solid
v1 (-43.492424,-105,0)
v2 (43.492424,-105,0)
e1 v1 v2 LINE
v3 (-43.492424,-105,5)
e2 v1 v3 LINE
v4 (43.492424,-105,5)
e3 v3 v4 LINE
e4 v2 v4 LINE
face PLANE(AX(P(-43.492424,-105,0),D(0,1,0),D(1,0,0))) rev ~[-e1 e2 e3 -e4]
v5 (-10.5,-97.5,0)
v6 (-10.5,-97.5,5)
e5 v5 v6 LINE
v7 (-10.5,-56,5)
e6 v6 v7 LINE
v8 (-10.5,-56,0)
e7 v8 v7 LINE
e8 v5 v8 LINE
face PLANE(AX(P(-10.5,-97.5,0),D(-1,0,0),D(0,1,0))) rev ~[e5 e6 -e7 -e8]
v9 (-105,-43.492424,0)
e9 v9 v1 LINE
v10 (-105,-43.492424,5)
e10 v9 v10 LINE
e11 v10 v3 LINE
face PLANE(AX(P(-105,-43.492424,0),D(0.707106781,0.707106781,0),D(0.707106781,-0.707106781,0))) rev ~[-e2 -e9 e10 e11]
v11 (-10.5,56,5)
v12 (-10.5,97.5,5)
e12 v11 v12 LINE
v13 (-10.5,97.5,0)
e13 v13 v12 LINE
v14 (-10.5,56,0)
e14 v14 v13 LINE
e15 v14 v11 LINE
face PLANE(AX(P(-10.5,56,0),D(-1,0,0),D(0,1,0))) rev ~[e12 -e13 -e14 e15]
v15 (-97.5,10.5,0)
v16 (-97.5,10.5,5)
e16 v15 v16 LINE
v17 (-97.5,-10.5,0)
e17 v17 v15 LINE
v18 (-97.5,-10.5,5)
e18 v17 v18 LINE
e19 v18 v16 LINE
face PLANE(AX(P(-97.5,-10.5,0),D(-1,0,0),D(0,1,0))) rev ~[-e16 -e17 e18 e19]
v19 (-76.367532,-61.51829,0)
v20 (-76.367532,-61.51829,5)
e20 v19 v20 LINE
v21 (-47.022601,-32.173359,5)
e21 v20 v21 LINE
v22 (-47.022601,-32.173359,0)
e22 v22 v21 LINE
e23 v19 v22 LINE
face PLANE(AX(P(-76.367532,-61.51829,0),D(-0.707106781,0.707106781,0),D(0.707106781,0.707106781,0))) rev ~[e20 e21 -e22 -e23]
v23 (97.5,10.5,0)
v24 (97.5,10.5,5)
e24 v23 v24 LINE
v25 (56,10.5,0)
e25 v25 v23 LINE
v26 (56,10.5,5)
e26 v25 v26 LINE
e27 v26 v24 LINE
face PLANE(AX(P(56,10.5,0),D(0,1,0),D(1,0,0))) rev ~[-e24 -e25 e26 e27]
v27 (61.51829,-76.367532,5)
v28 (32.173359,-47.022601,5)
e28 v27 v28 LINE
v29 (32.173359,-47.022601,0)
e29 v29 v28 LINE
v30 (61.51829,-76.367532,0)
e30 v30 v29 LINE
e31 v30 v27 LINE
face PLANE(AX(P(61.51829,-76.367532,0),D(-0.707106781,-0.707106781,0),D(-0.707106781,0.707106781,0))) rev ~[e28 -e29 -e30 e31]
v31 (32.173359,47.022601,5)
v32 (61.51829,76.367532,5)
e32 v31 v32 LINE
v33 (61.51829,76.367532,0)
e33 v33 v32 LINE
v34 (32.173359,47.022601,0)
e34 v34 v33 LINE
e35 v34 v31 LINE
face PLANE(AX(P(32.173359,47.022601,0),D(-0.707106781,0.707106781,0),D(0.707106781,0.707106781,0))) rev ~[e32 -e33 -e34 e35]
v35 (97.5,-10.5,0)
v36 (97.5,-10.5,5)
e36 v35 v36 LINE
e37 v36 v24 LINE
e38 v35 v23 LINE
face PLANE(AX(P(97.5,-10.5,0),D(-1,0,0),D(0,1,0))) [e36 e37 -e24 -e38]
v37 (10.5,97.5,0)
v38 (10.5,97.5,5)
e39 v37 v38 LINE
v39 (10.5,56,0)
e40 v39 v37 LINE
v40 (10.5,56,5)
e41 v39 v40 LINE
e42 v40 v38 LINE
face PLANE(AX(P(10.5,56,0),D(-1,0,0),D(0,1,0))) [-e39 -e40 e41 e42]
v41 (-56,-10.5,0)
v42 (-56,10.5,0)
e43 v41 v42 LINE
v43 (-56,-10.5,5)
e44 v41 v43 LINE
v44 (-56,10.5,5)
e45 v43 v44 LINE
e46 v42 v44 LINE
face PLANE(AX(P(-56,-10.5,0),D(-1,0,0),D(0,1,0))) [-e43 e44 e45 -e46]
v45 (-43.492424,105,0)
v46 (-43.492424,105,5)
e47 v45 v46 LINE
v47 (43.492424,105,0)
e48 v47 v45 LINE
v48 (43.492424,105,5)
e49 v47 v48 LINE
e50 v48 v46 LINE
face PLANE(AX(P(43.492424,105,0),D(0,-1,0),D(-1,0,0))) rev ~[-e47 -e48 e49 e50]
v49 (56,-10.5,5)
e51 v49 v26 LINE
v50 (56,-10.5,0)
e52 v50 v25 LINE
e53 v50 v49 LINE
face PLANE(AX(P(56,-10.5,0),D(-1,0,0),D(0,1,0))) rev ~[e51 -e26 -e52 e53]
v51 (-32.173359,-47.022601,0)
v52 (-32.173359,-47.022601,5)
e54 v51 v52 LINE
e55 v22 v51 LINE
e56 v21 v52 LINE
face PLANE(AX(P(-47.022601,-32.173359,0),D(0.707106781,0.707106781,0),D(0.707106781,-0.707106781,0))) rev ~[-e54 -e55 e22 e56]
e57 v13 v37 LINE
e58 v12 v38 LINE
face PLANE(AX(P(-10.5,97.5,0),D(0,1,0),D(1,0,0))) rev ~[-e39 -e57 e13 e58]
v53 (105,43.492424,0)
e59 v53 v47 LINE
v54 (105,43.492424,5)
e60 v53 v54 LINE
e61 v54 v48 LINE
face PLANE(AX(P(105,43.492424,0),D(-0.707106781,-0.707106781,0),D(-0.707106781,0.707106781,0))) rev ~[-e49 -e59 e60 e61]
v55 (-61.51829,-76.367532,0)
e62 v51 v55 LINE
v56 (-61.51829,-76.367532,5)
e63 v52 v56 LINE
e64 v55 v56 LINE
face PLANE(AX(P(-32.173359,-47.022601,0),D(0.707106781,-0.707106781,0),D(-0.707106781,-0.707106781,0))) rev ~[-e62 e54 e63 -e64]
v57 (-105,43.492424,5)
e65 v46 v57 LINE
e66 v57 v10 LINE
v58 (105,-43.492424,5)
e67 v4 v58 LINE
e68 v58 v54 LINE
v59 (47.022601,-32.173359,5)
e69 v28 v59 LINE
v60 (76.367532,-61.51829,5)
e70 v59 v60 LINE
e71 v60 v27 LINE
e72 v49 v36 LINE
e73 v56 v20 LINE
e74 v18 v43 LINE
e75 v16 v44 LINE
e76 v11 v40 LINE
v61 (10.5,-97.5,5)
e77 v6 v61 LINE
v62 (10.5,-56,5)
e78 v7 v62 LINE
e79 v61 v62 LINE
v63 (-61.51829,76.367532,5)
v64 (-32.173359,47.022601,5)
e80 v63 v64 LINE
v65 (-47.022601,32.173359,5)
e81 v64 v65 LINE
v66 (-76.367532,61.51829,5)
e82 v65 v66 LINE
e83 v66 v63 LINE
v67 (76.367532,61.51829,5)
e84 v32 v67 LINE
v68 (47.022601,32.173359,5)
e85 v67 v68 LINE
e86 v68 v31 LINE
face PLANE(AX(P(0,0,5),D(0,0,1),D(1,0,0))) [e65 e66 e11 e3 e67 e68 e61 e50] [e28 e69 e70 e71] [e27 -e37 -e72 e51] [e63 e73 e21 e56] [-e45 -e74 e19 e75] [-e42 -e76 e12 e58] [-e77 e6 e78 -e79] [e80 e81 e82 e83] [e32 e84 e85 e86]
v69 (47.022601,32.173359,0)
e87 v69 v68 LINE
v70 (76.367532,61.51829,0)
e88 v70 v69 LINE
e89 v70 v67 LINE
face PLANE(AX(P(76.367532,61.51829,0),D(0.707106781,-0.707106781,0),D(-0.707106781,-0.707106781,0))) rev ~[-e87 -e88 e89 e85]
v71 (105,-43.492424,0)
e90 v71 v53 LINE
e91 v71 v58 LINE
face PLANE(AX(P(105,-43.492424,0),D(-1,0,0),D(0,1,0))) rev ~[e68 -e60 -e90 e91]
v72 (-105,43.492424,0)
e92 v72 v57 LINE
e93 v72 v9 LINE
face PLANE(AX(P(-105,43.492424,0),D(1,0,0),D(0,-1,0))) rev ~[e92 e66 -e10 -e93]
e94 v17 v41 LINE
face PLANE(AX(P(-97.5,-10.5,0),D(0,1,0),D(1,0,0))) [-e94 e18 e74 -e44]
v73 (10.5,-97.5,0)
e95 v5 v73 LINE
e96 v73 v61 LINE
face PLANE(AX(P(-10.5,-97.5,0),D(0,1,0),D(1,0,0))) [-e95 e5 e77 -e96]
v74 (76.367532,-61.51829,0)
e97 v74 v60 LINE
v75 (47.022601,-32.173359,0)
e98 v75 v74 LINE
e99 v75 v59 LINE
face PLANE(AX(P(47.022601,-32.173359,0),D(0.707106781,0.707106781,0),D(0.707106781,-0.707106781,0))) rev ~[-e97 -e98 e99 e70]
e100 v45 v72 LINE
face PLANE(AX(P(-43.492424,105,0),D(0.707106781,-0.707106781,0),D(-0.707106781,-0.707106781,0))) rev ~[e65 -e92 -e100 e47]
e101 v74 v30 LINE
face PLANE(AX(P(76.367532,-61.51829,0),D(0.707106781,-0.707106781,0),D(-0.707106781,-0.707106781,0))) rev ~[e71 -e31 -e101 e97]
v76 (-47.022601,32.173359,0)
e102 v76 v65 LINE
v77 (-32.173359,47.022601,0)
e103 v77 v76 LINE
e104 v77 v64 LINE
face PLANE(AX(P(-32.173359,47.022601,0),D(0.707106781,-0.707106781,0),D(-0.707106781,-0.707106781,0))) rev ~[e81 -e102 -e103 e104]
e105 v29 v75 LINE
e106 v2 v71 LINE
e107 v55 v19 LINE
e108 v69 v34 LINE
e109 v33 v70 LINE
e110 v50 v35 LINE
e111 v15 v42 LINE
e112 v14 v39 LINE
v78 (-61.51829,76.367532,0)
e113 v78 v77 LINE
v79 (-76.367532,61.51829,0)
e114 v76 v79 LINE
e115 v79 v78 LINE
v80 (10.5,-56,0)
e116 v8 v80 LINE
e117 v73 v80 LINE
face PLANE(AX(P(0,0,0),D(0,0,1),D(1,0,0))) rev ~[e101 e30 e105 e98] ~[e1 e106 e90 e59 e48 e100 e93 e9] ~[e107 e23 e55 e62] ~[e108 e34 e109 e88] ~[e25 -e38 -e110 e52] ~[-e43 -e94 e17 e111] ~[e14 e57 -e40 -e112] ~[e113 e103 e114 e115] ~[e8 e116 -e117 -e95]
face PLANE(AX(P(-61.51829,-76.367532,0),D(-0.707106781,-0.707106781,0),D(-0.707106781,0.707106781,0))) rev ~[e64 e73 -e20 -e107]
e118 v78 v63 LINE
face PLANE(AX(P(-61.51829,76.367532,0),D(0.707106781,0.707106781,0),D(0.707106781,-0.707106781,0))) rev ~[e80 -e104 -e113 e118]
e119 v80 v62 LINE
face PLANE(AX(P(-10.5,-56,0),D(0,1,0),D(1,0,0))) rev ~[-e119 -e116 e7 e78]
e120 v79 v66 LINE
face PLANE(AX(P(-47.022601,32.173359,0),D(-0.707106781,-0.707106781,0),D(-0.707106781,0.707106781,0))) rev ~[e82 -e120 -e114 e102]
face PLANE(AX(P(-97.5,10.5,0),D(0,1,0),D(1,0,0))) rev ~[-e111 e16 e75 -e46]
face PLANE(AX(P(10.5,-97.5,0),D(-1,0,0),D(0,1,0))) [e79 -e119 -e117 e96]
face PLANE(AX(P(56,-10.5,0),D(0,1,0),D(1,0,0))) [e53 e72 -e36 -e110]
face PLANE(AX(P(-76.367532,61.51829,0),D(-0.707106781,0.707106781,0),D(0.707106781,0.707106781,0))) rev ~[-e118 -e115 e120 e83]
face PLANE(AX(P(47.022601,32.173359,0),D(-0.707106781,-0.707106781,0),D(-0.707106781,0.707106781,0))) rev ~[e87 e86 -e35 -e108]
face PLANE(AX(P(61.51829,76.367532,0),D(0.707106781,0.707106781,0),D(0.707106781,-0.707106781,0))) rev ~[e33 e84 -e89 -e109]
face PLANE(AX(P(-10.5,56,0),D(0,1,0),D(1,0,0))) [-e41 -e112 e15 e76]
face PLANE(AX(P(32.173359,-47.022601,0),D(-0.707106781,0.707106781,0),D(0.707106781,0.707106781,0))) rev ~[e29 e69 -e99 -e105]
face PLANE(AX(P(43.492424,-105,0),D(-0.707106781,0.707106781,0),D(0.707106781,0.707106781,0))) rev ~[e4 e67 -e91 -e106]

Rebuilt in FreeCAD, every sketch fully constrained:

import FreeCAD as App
import Part
import Sketcher
from FreeCAD import Vector
Q = App.Units.Quantity

doc = App.newDocument("Part")
params = doc.addObject("Spreadsheet::Sheet", "Params")
for row, (alias, value) in enumerate([
    ("sketch1_width", "21 mm"),
    ("sketch1_length", "21 mm"),
    ("sketch1_width2", "41.5 mm"),
    ("sketch1_length2", "41.5 mm"),
    ("pad1_length", "5 mm"),
], start=1):
    params.set(f"A{row}", alias)
    params.set(f"B{row}", "=" + value)
    params.setAlias(f"B{row}", alias)

body = doc.addObject("PartDesign::Body", "Body")

# Sketch on XY plane
sketch1 = doc.addObject("Sketcher::SketchObject", "Sketch")
body.addObject(sketch1)
sketch1.AttachmentSupport = (doc.XY_Plane, [""])
sketch1.MapMode = "FlatFace"
sketch1.addGeometry(Part.LineSegment(Vector(105, 43, 0), Vector(43, 105, 0)), False)
sketch1.addGeometry(Part.LineSegment(Vector(43, 105, 0), Vector(-43, 105, 0)), False)
sketch1.addGeometry(Part.LineSegment(Vector(-43, 105, 0), Vector(-105, 43, 0)), False)
sketch1.addGeometry(Part.LineSegment(Vector(-105, 43, 0), Vector(-105, -43, 0)), False)
sketch1.addGeometry(Part.LineSegment(Vector(-105, -43, 0), Vector(-43, -105, 0)), False)
sketch1.addGeometry(Part.LineSegment(Vector(-43, -105, 0), Vector(43, -105, 0)), False)
sketch1.addGeometry(Part.LineSegment(Vector(43, -105, 0), Vector(105, -43, 0)), False)
sketch1.addGeometry(Part.LineSegment(Vector(105, -43, 0), Vector(105, 43, 0)), False)
sketch1.addGeometry(Part.LineSegment(Vector(-47, -32, 0), Vector(-32, -47, 0)), False)
sketch1.addGeometry(Part.LineSegment(Vector(-32, -47, 0), Vector(-62, -76, 0)), False)
sketch1.addGeometry(Part.LineSegment(Vector(-62, -76, 0), Vector(-76, -62, 0)), False)
sketch1.addGeometry(Part.LineSegment(Vector(-76, -62, 0), Vector(-47, -32, 0)), False)
sketch1.addGeometry(Part.LineSegment(Vector(10, -98, 0), Vector(-10, -98, 0)), False)
sketch1.addGeometry(Part.LineSegment(Vector(-10, -98, 0), Vector(-10, -56, 0)), False)
sketch1.addGeometry(Part.LineSegment(Vector(-10, -56, 0), Vector(10, -56, 0)), False)
sketch1.addGeometry(Part.LineSegment(Vector(10, -56, 0), Vector(10, -98, 0)), False)
sketch1.addGeometry(Part.LineSegment(Vector(32, -47, 0), Vector(47, -32, 0)), False)
sketch1.addGeometry(Part.LineSegment(Vector(47, -32, 0), Vector(76, -62, 0)), False)
sketch1.addGeometry(Part.LineSegment(Vector(76, -62, 0), Vector(62, -76, 0)), False)
sketch1.addGeometry(Part.LineSegment(Vector(62, -76, 0), Vector(32, -47, 0)), False)
sketch1.addGeometry(Part.LineSegment(Vector(-56, -10, 0), Vector(-98, -10, 0)), False)
sketch1.addGeometry(Part.LineSegment(Vector(-98, -10, 0), Vector(-98, 10, 0)), False)
sketch1.addGeometry(Part.LineSegment(Vector(-98, 10, 0), Vector(-56, 10, 0)), False)
sketch1.addGeometry(Part.LineSegment(Vector(-56, 10, 0), Vector(-56, -10, 0)), False)
sketch1.addGeometry(Part.LineSegment(Vector(-32, 47, 0), Vector(-47, 32, 0)), False)
sketch1.addGeometry(Part.LineSegment(Vector(-47, 32, 0), Vector(-76, 62, 0)), False)
sketch1.addGeometry(Part.LineSegment(Vector(-76, 62, 0), Vector(-62, 76, 0)), False)
sketch1.addGeometry(Part.LineSegment(Vector(-62, 76, 0), Vector(-32, 47, 0)), False)
sketch1.addGeometry(Part.LineSegment(Vector(98, -10, 0), Vector(56, -10, 0)), False)
sketch1.addGeometry(Part.LineSegment(Vector(56, -10, 0), Vector(56, 10, 0)), False)
sketch1.addGeometry(Part.LineSegment(Vector(56, 10, 0), Vector(98, 10, 0)), False)
sketch1.addGeometry(Part.LineSegment(Vector(98, 10, 0), Vector(98, -10, 0)), False)
sketch1.addGeometry(Part.LineSegment(Vector(10, 56, 0), Vector(-10, 56, 0)), False)
sketch1.addGeometry(Part.LineSegment(Vector(-10, 56, 0), Vector(-10, 98, 0)), False)
sketch1.addGeometry(Part.LineSegment(Vector(-10, 98, 0), Vector(10, 98, 0)), False)
sketch1.addGeometry(Part.LineSegment(Vector(10, 98, 0), Vector(10, 56, 0)), False)
sketch1.addGeometry(Part.LineSegment(Vector(47, 32, 0), Vector(32, 47, 0)), False)
sketch1.addGeometry(Part.LineSegment(Vector(32, 47, 0), Vector(62, 76, 0)), False)
sketch1.addGeometry(Part.LineSegment(Vector(62, 76, 0), Vector(76, 62, 0)), False)
sketch1.addGeometry(Part.LineSegment(Vector(76, 62, 0), Vector(47, 32, 0)), False)
sketch1.addConstraint(Sketcher.Constraint("Coincident", 0, 2, 1, 1))
sketch1.addConstraint(Sketcher.Constraint("Coincident", 1, 2, 2, 1))
sketch1.addConstraint(Sketcher.Constraint("Coincident", 2, 2, 3, 1))
sketch1.addConstraint(Sketcher.Constraint("Coincident", 3, 2, 4, 1))
sketch1.addConstraint(Sketcher.Constraint("Coincident", 4, 2, 5, 1))
sketch1.addConstraint(Sketcher.Constraint("Coincident", 5, 2, 6, 1))
sketch1.addConstraint(Sketcher.Constraint("Coincident", 6, 2, 7, 1))
sketch1.addConstraint(Sketcher.Constraint("Coincident", 7, 2, 0, 1))
sketch1.addConstraint(Sketcher.Constraint("Coincident", 8, 2, 9, 1))
sketch1.addConstraint(Sketcher.Constraint("Coincident", 9, 2, 10, 1))
sketch1.addConstraint(Sketcher.Constraint("Coincident", 10, 2, 11, 1))
sketch1.addConstraint(Sketcher.Constraint("Coincident", 11, 2, 8, 1))
sketch1.addConstraint(Sketcher.Constraint("Coincident", 12, 2, 13, 1))
sketch1.addConstraint(Sketcher.Constraint("Coincident", 13, 2, 14, 1))
sketch1.addConstraint(Sketcher.Constraint("Coincident", 14, 2, 15, 1))
sketch1.addConstraint(Sketcher.Constraint("Coincident", 15, 2, 12, 1))
sketch1.addConstraint(Sketcher.Constraint("Coincident", 16, 2, 17, 1))
sketch1.addConstraint(Sketcher.Constraint("Coincident", 17, 2, 18, 1))
sketch1.addConstraint(Sketcher.Constraint("Coincident", 18, 2, 19, 1))
sketch1.addConstraint(Sketcher.Constraint("Coincident", 19, 2, 16, 1))
sketch1.addConstraint(Sketcher.Constraint("Coincident", 20, 2, 21, 1))
sketch1.addConstraint(Sketcher.Constraint("Coincident", 21, 2, 22, 1))
sketch1.addConstraint(Sketcher.Constraint("Coincident", 22, 2, 23, 1))
sketch1.addConstraint(Sketcher.Constraint("Coincident", 23, 2, 20, 1))
sketch1.addConstraint(Sketcher.Constraint("Coincident", 24, 2, 25, 1))
sketch1.addConstraint(Sketcher.Constraint("Coincident", 25, 2, 26, 1))
sketch1.addConstraint(Sketcher.Constraint("Coincident", 26, 2, 27, 1))
sketch1.addConstraint(Sketcher.Constraint("Coincident", 27, 2, 24, 1))
sketch1.addConstraint(Sketcher.Constraint("Coincident", 28, 2, 29, 1))
sketch1.addConstraint(Sketcher.Constraint("Coincident", 29, 2, 30, 1))
sketch1.addConstraint(Sketcher.Constraint("Coincident", 30, 2, 31, 1))
sketch1.addConstraint(Sketcher.Constraint("Coincident", 31, 2, 28, 1))
sketch1.addConstraint(Sketcher.Constraint("Coincident", 32, 2, 33, 1))
sketch1.addConstraint(Sketcher.Constraint("Coincident", 33, 2, 34, 1))
sketch1.addConstraint(Sketcher.Constraint("Coincident", 34, 2, 35, 1))
sketch1.addConstraint(Sketcher.Constraint("Coincident", 35, 2, 32, 1))
sketch1.addConstraint(Sketcher.Constraint("Coincident", 36, 2, 37, 1))
sketch1.addConstraint(Sketcher.Constraint("Coincident", 37, 2, 38, 1))
sketch1.addConstraint(Sketcher.Constraint("Coincident", 38, 2, 39, 1))
sketch1.addConstraint(Sketcher.Constraint("Coincident", 39, 2, 36, 1))
sketch1.addConstraint(Sketcher.Constraint("Horizontal", 1))
sketch1.addConstraint(Sketcher.Constraint("Vertical", 3))
sketch1.addConstraint(Sketcher.Constraint("Horizontal", 5))
sketch1.addConstraint(Sketcher.Constraint("Vertical", 7))
sketch1.addConstraint(Sketcher.Constraint("Horizontal", 12))
sketch1.addConstraint(Sketcher.Constraint("Vertical", 13))
sketch1.addConstraint(Sketcher.Constraint("Horizontal", 14))
sketch1.addConstraint(Sketcher.Constraint("Vertical", 15))
sketch1.addConstraint(Sketcher.Constraint("Horizontal", 20))
sketch1.addConstraint(Sketcher.Constraint("Vertical", 21))
sketch1.addConstraint(Sketcher.Constraint("Horizontal", 22))
sketch1.addConstraint(Sketcher.Constraint("Vertical", 23))
sketch1.addConstraint(Sketcher.Constraint("Horizontal", 28))
sketch1.addConstraint(Sketcher.Constraint("Vertical", 29))
sketch1.addConstraint(Sketcher.Constraint("Horizontal", 30))
sketch1.addConstraint(Sketcher.Constraint("Vertical", 31))
sketch1.addConstraint(Sketcher.Constraint("Horizontal", 32))
sketch1.addConstraint(Sketcher.Constraint("Vertical", 33))
sketch1.addConstraint(Sketcher.Constraint("Horizontal", 34))
sketch1.addConstraint(Sketcher.Constraint("Vertical", 35))
sketch1.addConstraint(Sketcher.Constraint("Symmetric", 0, 2, 4, 2, -1, 1))
sketch1.addConstraint(Sketcher.Constraint("Symmetric", 2, 2, 6, 2, -1, 1))
sketch1.addConstraint(Sketcher.Constraint("Symmetric", 16, 2, 24, 2, -1, 1))
sketch1.addConstraint(Sketcher.Constraint("Symmetric", 17, 2, 25, 2, -1, 1))
sketch1.addConstraint(Sketcher.Constraint("Symmetric", 18, 2, 26, 2, -1, 1))
sketch1.addConstraint(Sketcher.Constraint("Symmetric", 19, 2, 27, 2, -1, 1))
sketch1.addConstraint(Sketcher.Constraint("Symmetric", 22, 2, 28, 2, -1, 1))
sketch1.addConstraint(Sketcher.Constraint("Symmetric", 20, 2, 30, 2, -1, 1))
sketch1.addConstraint(Sketcher.Constraint("Symmetric", 14, 2, 32, 2, -1, 1))
sketch1.addConstraint(Sketcher.Constraint("Symmetric", 12, 2, 34, 2, -1, 1))
sketch1.addConstraint(Sketcher.Constraint("Symmetric", 8, 2, 36, 2, -1, 1))
sketch1.addConstraint(Sketcher.Constraint("Symmetric", 9, 2, 37, 2, -1, 1))
sketch1.addConstraint(Sketcher.Constraint("Symmetric", 10, 2, 38, 2, -1, 1))
sketch1.addConstraint(Sketcher.Constraint("Symmetric", 11, 2, 39, 2, -1, 1))
sketch1.addConstraint(Sketcher.Constraint("Symmetric", 11, 2, 16, 2, -2))
sketch1.addConstraint(Sketcher.Constraint("Symmetric", 10, 2, 17, 2, -2))
sketch1.addConstraint(Sketcher.Constraint("Symmetric", 9, 2, 18, 2, -2))
sketch1.addConstraint(Sketcher.Constraint("Symmetric", 8, 2, 19, 2, -2))
sketch1.addConstraint(Sketcher.Constraint("Perpendicular", 0, 2))
sketch1.addConstraint(Sketcher.Constraint("Perpendicular", 2, 4))
sketch1.addConstraint(Sketcher.Constraint("Perpendicular", 4, 6))
sketch1.addConstraint(Sketcher.Constraint("Perpendicular", 6, 8))
sketch1.addConstraint(Sketcher.Constraint("Perpendicular", 8, 9))
sketch1.addConstraint(Sketcher.Constraint("Perpendicular", 9, 10))
sketch1.addConstraint(Sketcher.Constraint("Perpendicular", 10, 11))
sketch1.addConstraint(Sketcher.Constraint("Parallel", 11, 16))
sketch1.addConstraint(Sketcher.Constraint("Horizontal", 3, 2, 6, 2))
sketch1.addConstraint(Sketcher.Constraint("Horizontal", 23, 2, 28, 2))
sketch1.addConstraint(Sketcher.Constraint("Vertical", 13, 2, 32, 2))
sketch1.addConstraint(Sketcher.Constraint("Equal", 5, 3))
sketch1.addConstraint(Sketcher.Constraint("Equal", 30, 13))
sketch1.addConstraint(Sketcher.Constraint("Equal", 34, 21))
sketch1.addConstraint(Sketcher.Constraint("DistanceX", 12, 2, 12, 1, Q("21 mm")))
sketch1.addConstraint(Sketcher.Constraint("Distance", 8, Q("21 mm")))
sketch1.addConstraint(Sketcher.Constraint("DistanceX", 20, 2, 20, 1, Q("41.5 mm")))
sketch1.addConstraint(Sketcher.Constraint("DistanceY", -1, 1, 0, 2, Q("105 mm")))
sketch1.addConstraint(Sketcher.Constraint("DistanceY", 13, 2, -1, 1, Q("56 mm")))
sketch1.addConstraint(Sketcher.Constraint("DistanceX", 22, 2, -1, 1, Q("56 mm")))
sketch1.addConstraint(Sketcher.Constraint("Distance", 9, Q("41.5 mm")))
sketch1.addConstraint(Sketcher.Constraint("DistanceX", 1, 2, 1, 1, Q("86.984848 mm")))
sketch1.addConstraint(Sketcher.Constraint("DistanceY", 8, 2, -1, 1, Q("47.022601 mm")))
sketch1.addConstraint(Sketcher.Constraint("DistanceX", 11, 2, -1, 1, Q("47.022601 mm")))
sketch1.setExpression("Constraints[92]", "Params.sketch1_width")
sketch1.setExpression("Constraints[93]", "Params.sketch1_length")
sketch1.setExpression("Constraints[94]", "Params.sketch1_width2")
sketch1.setExpression("Constraints[98]", "Params.sketch1_length2")
pad1 = doc.addObject("PartDesign::Pad", "Pad")
body.addObject(pad1)
pad1.Profile = sketch1
pad1.setExpression("Length", "Params.pad1_length")

doc.recompute()
